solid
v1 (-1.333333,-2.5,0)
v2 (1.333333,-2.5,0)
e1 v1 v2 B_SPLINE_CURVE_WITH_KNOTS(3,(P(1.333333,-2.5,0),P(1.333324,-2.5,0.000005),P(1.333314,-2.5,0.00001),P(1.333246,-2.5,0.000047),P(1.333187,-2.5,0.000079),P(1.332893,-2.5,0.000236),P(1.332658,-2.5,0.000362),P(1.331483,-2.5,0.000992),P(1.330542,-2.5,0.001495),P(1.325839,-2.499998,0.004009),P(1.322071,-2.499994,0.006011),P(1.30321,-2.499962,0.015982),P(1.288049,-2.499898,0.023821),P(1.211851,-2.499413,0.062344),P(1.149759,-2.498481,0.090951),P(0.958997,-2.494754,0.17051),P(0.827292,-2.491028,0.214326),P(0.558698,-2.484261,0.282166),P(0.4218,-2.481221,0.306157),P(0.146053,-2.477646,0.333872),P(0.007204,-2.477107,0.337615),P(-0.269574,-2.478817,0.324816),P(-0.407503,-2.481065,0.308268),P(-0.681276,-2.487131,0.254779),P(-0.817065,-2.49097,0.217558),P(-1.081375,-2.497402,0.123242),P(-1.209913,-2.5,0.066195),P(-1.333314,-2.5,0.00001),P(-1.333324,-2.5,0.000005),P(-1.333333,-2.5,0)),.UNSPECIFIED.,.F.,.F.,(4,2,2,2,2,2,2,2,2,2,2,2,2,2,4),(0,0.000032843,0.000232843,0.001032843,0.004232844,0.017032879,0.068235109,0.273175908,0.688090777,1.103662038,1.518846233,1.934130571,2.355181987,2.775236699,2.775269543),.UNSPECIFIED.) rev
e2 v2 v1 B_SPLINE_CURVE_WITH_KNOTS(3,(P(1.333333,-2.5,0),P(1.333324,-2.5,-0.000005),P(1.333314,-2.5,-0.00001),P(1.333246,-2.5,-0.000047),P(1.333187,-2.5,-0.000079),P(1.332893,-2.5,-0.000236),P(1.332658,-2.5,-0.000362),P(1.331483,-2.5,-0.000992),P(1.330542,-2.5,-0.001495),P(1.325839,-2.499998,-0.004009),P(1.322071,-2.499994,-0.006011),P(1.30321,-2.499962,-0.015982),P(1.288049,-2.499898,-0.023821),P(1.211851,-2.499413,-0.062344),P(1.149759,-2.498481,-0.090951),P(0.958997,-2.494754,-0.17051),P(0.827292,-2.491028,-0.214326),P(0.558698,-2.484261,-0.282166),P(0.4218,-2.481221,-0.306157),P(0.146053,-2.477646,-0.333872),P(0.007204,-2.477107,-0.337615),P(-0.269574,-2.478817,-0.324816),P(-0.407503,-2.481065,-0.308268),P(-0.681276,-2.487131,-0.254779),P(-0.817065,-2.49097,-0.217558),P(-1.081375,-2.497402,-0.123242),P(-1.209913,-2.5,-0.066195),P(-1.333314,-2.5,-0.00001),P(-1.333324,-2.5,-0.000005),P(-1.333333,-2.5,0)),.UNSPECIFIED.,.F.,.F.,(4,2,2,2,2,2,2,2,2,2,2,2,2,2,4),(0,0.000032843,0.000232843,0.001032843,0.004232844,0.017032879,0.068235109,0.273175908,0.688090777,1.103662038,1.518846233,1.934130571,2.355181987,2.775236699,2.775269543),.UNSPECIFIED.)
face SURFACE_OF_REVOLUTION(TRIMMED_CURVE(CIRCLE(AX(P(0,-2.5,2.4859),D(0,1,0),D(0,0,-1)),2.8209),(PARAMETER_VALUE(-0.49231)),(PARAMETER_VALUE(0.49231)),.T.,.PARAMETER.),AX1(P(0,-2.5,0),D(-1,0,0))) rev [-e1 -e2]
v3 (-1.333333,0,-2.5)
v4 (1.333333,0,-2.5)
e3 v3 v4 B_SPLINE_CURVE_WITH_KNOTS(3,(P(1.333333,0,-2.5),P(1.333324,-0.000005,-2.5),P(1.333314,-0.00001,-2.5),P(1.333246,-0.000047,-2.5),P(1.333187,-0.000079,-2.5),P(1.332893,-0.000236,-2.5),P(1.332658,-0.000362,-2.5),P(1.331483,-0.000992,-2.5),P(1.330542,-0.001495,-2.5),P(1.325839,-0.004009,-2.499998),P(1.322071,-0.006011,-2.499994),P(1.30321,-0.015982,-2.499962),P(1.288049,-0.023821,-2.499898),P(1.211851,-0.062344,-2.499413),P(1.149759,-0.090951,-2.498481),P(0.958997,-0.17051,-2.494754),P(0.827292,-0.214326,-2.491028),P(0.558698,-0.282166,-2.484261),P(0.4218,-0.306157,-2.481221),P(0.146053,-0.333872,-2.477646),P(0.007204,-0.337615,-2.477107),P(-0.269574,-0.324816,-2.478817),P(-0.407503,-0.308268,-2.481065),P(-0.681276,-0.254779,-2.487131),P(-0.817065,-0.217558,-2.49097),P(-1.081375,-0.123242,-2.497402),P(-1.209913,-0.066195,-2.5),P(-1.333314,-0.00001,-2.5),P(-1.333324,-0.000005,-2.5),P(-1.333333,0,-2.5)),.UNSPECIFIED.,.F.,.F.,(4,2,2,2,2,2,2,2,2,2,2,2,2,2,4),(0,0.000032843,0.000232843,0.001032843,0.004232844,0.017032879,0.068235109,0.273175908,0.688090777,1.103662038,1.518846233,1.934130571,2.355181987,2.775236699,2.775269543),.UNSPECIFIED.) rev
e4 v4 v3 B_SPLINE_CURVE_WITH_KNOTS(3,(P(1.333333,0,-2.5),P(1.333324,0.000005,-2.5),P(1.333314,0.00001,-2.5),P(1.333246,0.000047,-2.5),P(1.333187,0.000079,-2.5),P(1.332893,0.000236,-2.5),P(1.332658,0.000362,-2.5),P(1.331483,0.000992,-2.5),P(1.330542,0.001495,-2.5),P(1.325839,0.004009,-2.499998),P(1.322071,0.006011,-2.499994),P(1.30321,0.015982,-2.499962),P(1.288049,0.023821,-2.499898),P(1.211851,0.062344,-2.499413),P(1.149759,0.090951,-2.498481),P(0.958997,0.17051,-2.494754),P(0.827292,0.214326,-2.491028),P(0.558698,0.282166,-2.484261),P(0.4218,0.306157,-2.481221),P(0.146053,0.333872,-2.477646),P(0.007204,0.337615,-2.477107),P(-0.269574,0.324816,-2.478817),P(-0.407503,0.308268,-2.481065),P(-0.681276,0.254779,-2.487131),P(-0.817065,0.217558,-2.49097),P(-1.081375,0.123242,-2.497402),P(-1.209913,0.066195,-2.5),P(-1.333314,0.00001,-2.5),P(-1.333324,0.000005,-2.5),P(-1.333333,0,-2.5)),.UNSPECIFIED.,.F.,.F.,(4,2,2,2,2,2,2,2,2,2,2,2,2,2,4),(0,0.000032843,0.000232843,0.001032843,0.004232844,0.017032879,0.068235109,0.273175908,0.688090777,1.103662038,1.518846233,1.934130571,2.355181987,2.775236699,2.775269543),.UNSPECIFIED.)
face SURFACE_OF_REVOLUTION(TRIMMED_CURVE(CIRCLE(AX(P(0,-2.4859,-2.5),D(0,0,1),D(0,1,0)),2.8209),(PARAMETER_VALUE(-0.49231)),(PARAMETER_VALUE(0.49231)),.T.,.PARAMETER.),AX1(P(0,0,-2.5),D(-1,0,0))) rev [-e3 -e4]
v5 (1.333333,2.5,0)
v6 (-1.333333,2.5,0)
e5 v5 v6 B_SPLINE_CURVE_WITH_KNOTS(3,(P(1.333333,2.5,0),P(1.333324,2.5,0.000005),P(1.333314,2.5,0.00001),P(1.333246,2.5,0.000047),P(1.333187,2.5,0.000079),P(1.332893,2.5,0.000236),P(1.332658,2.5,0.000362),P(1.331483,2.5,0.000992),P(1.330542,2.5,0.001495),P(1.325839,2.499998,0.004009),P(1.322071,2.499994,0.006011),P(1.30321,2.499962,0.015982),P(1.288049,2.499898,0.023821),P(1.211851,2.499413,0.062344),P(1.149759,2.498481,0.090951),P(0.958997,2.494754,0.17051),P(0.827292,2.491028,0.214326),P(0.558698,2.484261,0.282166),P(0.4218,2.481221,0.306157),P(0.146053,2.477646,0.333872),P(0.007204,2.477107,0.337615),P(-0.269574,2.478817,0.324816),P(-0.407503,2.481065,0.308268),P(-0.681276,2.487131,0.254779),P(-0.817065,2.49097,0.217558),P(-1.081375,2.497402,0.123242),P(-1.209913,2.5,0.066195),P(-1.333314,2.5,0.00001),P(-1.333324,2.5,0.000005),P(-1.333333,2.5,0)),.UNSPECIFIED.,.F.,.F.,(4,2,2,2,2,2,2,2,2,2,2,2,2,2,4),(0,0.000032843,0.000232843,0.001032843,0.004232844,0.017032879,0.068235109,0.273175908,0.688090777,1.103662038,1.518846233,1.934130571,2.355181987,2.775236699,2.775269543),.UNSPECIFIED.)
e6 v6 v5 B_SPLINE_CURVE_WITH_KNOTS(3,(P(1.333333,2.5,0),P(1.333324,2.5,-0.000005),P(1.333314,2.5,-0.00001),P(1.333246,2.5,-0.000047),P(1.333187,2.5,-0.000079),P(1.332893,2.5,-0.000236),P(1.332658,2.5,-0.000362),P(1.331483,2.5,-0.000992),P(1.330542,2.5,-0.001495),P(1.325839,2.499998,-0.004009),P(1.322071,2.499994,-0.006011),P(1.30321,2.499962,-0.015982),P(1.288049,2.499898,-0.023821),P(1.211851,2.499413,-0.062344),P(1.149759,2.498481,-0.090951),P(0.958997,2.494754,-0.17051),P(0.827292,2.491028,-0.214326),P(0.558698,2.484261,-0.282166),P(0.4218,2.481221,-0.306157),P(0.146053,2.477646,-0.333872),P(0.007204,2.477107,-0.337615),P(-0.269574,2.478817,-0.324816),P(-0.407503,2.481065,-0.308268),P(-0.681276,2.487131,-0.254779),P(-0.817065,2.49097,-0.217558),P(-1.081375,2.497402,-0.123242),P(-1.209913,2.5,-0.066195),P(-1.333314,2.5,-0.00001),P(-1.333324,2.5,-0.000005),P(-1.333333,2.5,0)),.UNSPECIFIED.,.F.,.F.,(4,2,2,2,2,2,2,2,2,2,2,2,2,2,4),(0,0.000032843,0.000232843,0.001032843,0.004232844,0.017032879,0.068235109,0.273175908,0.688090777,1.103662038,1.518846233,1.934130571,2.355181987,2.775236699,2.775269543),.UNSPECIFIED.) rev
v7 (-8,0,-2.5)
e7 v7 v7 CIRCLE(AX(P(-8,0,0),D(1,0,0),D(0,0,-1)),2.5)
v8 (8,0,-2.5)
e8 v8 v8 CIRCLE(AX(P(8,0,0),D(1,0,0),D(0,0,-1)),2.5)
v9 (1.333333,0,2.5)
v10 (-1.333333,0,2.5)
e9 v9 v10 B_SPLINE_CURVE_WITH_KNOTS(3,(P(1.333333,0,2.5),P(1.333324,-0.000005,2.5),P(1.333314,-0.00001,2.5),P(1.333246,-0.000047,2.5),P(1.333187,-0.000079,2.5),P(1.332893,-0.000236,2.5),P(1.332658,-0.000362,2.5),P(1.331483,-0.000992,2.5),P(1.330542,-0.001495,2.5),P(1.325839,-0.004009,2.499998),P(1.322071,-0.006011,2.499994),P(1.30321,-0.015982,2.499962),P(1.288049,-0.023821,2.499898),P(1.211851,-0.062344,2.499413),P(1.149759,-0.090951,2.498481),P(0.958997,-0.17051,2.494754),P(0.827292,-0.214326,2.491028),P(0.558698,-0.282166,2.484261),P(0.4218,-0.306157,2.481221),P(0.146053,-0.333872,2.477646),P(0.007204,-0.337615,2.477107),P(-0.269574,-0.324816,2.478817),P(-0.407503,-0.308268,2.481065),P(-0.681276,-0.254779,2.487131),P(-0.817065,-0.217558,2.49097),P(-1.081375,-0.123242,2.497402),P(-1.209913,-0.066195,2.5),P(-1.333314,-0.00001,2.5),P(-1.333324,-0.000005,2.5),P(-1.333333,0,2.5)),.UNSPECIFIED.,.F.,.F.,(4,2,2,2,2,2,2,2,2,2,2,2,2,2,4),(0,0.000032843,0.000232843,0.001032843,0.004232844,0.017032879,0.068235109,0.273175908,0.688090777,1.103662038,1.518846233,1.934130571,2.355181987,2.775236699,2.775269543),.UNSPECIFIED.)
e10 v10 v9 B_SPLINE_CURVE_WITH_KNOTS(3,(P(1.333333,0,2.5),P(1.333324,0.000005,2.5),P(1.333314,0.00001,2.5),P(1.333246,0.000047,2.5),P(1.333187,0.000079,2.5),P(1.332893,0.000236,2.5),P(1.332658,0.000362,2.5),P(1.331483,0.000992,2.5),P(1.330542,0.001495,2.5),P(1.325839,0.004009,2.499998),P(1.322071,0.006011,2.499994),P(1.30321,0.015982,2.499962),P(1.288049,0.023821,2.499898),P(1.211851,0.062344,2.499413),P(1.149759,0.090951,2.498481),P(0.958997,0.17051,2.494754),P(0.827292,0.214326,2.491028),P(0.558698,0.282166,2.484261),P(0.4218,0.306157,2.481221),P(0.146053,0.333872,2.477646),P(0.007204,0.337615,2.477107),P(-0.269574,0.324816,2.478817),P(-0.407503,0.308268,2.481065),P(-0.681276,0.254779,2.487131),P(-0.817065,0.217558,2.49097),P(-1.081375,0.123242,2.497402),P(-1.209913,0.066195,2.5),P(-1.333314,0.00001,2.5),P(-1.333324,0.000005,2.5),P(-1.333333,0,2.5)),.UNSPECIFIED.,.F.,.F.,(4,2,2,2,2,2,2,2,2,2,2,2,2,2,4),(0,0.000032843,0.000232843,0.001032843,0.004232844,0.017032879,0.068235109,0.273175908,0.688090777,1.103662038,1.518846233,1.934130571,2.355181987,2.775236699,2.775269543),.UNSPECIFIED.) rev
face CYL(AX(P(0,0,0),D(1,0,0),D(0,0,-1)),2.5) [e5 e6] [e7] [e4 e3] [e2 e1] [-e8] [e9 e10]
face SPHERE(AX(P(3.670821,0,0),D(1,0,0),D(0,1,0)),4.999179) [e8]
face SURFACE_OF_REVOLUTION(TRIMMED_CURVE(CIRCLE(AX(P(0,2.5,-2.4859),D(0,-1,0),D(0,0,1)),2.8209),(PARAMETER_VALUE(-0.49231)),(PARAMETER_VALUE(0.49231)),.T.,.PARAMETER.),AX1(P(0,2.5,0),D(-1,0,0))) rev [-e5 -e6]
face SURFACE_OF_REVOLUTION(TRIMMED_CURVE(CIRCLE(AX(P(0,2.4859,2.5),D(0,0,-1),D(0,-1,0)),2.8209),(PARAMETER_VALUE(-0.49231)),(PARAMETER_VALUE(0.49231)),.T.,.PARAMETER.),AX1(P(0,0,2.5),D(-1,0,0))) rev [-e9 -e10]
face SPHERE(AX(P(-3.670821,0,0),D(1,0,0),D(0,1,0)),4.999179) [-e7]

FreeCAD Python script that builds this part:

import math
import FreeCAD as App
import Part
import Sketcher

V = App.Vector

doc = App.newDocument("Part")
body = doc.addObject("PartDesign::Body", "Body")

# Sketch on XY plane
sketch1 = doc.addObject("Sketcher::SketchObject", "Sketch")
body.addObject(sketch1)
sketch1.AttachmentSupport = (doc.XY_Plane, [""])
sketch1.MapMode = "FlatFace"
sketch1.addGeometry(Part.LineSegment(V(8, 2.5, 0), V(-8, 2.5, 0)), False)
sketch1.addGeometry(Part.ArcOfCircle(Part.Circle(V(-3.7, 0, 0), V(0, 0, 1), 5), math.radians(150), math.radians(180)), False)
sketch1.addGeometry(Part.LineSegment(V(-8.7, 0, 0), V(8.7, 0, 0)), False)
sketch1.addGeometry(Part.ArcOfCircle(Part.Circle(V(3.7, 0, 0), V(0, 0, 1), 5), math.radians(0), math.radians(30)), False)
sketch1.addConstraint(Sketcher.Constraint("Coincident", 0, 2, 1, 1))
sketch1.addConstraint(Sketcher.Constraint("Coincident", 1, 2, 2, 1))
sketch1.addConstraint(Sketcher.Constraint("Coincident", 2, 2, 3, 1))
sketch1.addConstraint(Sketcher.Constraint("Coincident", 3, 2, 0, 1))
sketch1.addConstraint(Sketcher.Constraint("Horizontal", 0))
sketch1.addConstraint(Sketcher.Constraint("Horizontal", 2))
sketch1.addConstraint(Sketcher.Constraint("Equal", 1, 3))
sketch1.addConstraint(Sketcher.Constraint("Symmetric", 1, 3, 3, 3, -1, 1))
sketch1.addConstraint(Sketcher.Constraint("PointOnObject", 1, 3, -1))
sketch1.addConstraint(Sketcher.Constraint("PointOnObject", 1, 2, -1))
sketch1.addConstraint(Sketcher.Constraint("DistanceX", 0, 2, 0, 1, 16.0))
sketch1.addConstraint(Sketcher.Constraint("DistanceX", 2, 1, 2, 2, 17.34))
sketch1.addConstraint(Sketcher.Constraint("DistanceY", -1, 1, 0, 2, 2.5))
revolution = doc.addObject("PartDesign::Revolution", "Revolution")
body.addObject(revolution)
revolution.Profile = sketch1
revolution.ReferenceAxis = (sketch1, ["H_Axis"])
revolution.Angle = 360

# Sketch on XZ plane
sketch2 = doc.addObject("Sketcher::SketchObject", "Sketch001")
body.addObject(sketch2)
sketch2.AttachmentSupport = (doc.XZ_Plane, [""])
sketch2.MapMode = "FlatFace"
sketch2.AttachmentOffset = App.Placement(V(0, 0, -2.5), App.Rotation())
sketch2.addGeometry(Part.LineSegment(V(1.3, 0, 0), V(-1.3, 0, 0)), False)
sketch2.addGeometry(Part.ArcOfCircle(Part.Circle(V(0, -2.5, 0), V(0, 0, 1), 2.8), math.radians(90), math.radians(118)), False)
sketch2.addGeometry(Part.ArcOfCircle(Part.Circle(V(0, -2.5, 0), V(0, 0, 1), 2.8), math.radians(62), math.radians(90)), False)
sketch2.addConstraint(Sketcher.Constraint("Coincident", 0, 2, 1, 2))
sketch2.addConstraint(Sketcher.Constraint("Tangent", 1, 1, 2, 2))
sketch2.addConstraint(Sketcher.Constraint("Coincident", 2, 1, 0, 1))
sketch2.addConstraint(Sketcher.Constraint("Horizontal", 0))
sketch2.addConstraint(Sketcher.Constraint("Equal", 1, 2))
sketch2.addConstraint(Sketcher.Constraint("Symmetric", 0, 2, 2, 1, -1, 1))
sketch2.addConstraint(Sketcher.Constraint("PointOnObject", 1, 1, -2))
sketch2.addConstraint(Sketcher.Constraint("Radius", 1, 2.8209))
sketch2.addConstraint(Sketcher.Constraint("DistanceY", -1, 1, 1, 1, 0.335))
groove = doc.addObject("PartDesign::Groove", "Groove")
body.addObject(groove)
groove.Profile = sketch2
groove.ReferenceAxis = (sketch2, ["H_Axis"])
groove.Angle = 360
doc.recompute()

polarpattern = doc.addObject("PartDesign::PolarPattern", "PolarPattern")
body.addObject(polarpattern)
polarpattern.Originals = [groove]
polarpattern.Axis = (doc.X_Axis, [""])
polarpattern.Angle = 360
polarpattern.Occurrences = 4
body.Tip = polarpattern

doc.recompute()
